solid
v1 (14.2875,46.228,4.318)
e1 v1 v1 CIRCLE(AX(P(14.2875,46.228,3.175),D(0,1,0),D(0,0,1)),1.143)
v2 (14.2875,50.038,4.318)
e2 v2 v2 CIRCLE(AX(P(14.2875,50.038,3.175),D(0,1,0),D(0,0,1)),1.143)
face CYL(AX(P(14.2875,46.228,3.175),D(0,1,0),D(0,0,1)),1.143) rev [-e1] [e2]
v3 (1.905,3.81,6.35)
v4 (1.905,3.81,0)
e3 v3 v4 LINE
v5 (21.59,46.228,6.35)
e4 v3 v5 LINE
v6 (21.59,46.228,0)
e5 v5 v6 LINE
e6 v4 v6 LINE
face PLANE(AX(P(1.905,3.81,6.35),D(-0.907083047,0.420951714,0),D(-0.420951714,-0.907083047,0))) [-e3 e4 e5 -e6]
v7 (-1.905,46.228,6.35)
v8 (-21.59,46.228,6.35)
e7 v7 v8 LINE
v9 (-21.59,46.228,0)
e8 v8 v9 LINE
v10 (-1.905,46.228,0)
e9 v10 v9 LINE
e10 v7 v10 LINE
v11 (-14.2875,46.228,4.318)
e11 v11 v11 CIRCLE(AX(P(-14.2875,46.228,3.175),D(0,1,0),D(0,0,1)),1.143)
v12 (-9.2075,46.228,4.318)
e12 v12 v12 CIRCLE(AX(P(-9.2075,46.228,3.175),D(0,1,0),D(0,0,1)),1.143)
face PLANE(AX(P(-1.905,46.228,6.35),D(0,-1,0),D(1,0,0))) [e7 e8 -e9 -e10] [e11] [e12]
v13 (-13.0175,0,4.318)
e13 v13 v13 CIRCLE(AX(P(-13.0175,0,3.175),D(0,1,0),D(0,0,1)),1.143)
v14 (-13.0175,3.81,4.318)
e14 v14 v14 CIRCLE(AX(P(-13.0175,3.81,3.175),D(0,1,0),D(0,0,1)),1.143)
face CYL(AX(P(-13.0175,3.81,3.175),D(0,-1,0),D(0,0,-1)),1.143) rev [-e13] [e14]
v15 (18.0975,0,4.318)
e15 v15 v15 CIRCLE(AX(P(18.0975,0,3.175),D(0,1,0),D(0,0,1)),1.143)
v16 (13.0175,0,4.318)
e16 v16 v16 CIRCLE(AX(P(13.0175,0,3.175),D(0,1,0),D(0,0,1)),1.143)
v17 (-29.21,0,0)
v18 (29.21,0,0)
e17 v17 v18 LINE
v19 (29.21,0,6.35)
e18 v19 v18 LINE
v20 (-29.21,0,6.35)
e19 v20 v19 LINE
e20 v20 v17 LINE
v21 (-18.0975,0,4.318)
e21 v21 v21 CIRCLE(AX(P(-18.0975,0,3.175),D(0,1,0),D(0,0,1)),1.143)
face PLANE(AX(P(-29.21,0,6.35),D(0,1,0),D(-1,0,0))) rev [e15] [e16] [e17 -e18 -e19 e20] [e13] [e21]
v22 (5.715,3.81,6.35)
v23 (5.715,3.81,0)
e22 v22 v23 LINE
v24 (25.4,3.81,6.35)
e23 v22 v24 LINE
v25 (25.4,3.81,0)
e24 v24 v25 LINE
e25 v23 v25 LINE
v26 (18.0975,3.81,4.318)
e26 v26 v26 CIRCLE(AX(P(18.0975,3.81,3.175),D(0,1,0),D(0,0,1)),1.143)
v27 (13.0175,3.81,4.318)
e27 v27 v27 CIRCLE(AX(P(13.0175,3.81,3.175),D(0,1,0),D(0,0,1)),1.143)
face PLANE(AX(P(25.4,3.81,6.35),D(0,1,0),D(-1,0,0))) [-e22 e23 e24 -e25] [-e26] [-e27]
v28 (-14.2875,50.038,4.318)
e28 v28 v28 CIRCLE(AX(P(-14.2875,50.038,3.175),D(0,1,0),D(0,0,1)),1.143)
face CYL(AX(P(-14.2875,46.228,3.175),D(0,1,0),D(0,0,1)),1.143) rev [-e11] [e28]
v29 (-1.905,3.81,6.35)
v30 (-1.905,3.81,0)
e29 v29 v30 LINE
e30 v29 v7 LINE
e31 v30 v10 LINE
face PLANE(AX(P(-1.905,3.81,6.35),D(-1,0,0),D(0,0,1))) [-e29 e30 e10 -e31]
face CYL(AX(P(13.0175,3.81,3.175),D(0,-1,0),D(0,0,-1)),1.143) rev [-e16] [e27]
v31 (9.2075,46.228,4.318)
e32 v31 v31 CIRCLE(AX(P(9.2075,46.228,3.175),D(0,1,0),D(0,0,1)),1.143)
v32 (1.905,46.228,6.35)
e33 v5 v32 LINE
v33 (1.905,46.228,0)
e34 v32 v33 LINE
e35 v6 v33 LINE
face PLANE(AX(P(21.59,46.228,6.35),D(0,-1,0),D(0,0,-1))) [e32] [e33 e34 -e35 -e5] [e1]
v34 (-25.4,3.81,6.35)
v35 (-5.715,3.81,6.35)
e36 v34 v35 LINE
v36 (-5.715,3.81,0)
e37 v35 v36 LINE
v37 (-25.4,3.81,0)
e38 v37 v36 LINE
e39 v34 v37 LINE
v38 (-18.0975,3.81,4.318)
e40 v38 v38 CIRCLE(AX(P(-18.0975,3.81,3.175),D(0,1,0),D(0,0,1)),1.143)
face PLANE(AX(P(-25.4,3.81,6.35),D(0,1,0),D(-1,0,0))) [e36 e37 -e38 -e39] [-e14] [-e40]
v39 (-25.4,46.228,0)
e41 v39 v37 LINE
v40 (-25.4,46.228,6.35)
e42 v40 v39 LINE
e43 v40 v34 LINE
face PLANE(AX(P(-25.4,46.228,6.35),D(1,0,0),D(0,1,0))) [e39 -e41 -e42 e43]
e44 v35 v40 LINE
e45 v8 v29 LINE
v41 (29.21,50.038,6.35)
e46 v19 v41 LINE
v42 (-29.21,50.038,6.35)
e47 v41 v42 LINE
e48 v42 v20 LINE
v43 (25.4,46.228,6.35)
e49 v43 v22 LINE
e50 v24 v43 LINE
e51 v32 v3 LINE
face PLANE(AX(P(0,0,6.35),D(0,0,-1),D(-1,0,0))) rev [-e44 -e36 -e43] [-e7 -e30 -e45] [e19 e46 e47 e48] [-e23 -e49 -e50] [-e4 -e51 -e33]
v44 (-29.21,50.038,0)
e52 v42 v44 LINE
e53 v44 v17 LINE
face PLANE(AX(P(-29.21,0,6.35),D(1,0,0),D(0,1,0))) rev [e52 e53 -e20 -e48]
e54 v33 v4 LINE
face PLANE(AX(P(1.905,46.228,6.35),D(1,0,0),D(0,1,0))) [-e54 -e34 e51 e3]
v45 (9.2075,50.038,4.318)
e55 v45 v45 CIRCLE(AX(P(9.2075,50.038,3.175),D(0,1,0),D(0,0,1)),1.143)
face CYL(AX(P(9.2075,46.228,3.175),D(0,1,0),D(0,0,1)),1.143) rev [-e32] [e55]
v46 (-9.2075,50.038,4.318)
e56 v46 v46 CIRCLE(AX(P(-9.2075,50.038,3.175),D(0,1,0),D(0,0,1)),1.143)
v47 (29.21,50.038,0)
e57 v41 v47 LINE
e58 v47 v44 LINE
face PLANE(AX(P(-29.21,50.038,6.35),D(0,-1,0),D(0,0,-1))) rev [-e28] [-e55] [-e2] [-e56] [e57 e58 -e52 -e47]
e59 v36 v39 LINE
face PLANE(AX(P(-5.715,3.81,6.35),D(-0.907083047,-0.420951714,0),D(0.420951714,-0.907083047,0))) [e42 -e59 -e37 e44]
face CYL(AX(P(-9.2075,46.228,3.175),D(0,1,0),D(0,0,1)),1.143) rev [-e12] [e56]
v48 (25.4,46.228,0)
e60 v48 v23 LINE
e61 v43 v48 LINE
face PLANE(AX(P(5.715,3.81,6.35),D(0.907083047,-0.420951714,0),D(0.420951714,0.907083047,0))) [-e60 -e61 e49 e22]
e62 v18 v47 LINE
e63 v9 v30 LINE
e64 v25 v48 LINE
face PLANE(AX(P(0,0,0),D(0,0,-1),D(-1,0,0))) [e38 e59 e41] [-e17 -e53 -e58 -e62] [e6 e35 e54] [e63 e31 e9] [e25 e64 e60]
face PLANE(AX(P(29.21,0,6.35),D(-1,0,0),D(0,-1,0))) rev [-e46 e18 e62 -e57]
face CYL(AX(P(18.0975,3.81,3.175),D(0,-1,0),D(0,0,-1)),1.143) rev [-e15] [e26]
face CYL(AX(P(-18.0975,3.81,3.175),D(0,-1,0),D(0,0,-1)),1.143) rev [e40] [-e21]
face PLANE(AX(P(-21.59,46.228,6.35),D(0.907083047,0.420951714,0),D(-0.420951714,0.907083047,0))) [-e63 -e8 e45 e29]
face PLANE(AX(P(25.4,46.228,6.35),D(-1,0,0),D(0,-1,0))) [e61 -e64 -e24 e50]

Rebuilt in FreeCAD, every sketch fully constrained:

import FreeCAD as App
import Part
import Sketcher

V = App.Vector
Q = App.Units.Quantity


def add_polygon(sketch, points):
    """Adds a closed chain of lines whose ends are joined by coincident constraints."""
    first, n = sketch.GeometryCount, len(points)
    for a, b in zip(points, points[1:] + points[:1]):
        sketch.addGeometry(Part.LineSegment(App.Vector(*a, 0), App.Vector(*b, 0)), False)
    for i in range(n):
        sketch.addConstraint(Sketcher.Constraint("Coincident", first + i, 2, first + (i + 1) % n, 1))

doc = App.newDocument("Part")
body = doc.addObject("PartDesign::Body", "Body")

sketch1 = body.newObject("Sketcher::SketchObject", "Sketch")
sketch1.AttachmentSupport = (doc.getObject("XY_Plane"), [""])
sketch1.MapMode = "FlatFace"
add_polygon(sketch1, [(-29.21, 50.038), (-29.21, 0), (29.21, 0), (29.21, 50.038)])
add_polygon(sketch1, [(-1.905, 3.81), (-21.59, 46.228), (-1.905, 46.228)])
add_polygon(sketch1, [(-25.4, 3.81), (-25.4, 46.228), (-5.715, 3.81)])
add_polygon(sketch1, [(1.905, 3.81), (1.905, 46.228), (21.59, 46.228)])
add_polygon(sketch1, [(25.4, 3.81), (5.715, 3.81), (25.4, 46.228)])
sketch1.addConstraint(Sketcher.Constraint("Vertical", 0))
sketch1.addConstraint(Sketcher.Constraint("Horizontal", 1))
sketch1.addConstraint(Sketcher.Constraint("Vertical", 2))
sketch1.addConstraint(Sketcher.Constraint("Horizontal", 3))
sketch1.addConstraint(Sketcher.Constraint("Horizontal", 5))
sketch1.addConstraint(Sketcher.Constraint("Vertical", 6))
sketch1.addConstraint(Sketcher.Constraint("Vertical", 7))
sketch1.addConstraint(Sketcher.Constraint("Horizontal", 9))
sketch1.addConstraint(Sketcher.Constraint("Vertical", 10))
sketch1.addConstraint(Sketcher.Constraint("Horizontal", 11))
sketch1.addConstraint(Sketcher.Constraint("Horizontal", 13))
sketch1.addConstraint(Sketcher.Constraint("Vertical", 15))
sketch1.addConstraint(Sketcher.Constraint("Symmetric", 0, 2, 1, 2, -1, 1))
sketch1.addConstraint(Sketcher.Constraint("Symmetric", 5, 2, 10, 2, -2))
sketch1.addConstraint(Sketcher.Constraint("Symmetric", 8, 2, 13, 2, -2))
sketch1.addConstraint(Sketcher.Constraint("Symmetric", 7, 2, 14, 2, -2))
sketch1.addConstraint(Sketcher.Constraint("Parallel", 4, 8))
sketch1.addConstraint(Sketcher.Constraint("Parallel", 12, 14))
sketch1.addConstraint(Sketcher.Constraint("Horizontal", 5, 2, 7, 2))
sketch1.addConstraint(Sketcher.Constraint("Horizontal", 6, 2, 8, 2))
sketch1.addConstraint(Sketcher.Constraint("Horizontal", 9, 2, 12, 2))
sketch1.addConstraint(Sketcher.Constraint("DistanceX", 1, 1, 1, 2, Q("2.3 in")))
sketch1.addConstraint(Sketcher.Constraint("DistanceX", 7, 2, -1, 1, Q("1 in")))
sketch1.addConstraint(Sketcher.Constraint("DistanceX", 4, 2, 2, 2, Q("2 in")))
sketch1.addConstraint(Sketcher.Constraint("DistanceY", 0, 2, 0, 1, Q("1.97 in")))
sketch1.addConstraint(Sketcher.Constraint("DistanceY", 6, 2, 6, 1, Q("1.67 in")))
sketch1.addConstraint(Sketcher.Constraint("DistanceX", 8, 2, 12, 2, Q("0.3 in")))
sketch1.addConstraint(Sketcher.Constraint("DistanceY", -1, 1, 4, 2, Q("1.82 in")))
pad1 = body.newObject("PartDesign::Pad", "Pad")
pad1.Profile = sketch1
pad1.Length = Q("0.25 in")

sketch2 = body.newObject("Sketcher::SketchObject", "Sketch001")
sketch2.AttachmentSupport = (doc.getObject("XZ_Plane"), [""])
sketch2.MapMode = "FlatFace"
sketch2.addGeometry(Part.Circle(V(-18.0975, 3.175, 0), V(0, 0, 1), 1.143), False)
sketch2.addGeometry(Part.Circle(V(-13.0175, 3.175, 0), V(0, 0, 1), 1.143), False)
sketch2.addGeometry(Part.Circle(V(18.0975, 3.175, 0), V(0, 0, 1), 1.143), False)
sketch2.addGeometry(Part.Circle(V(13.0175, 3.175, 0), V(0, 0, 1), 1.143), False)
sketch2.addConstraint(Sketcher.Constraint("Equal", 0, 1))
sketch2.addConstraint(Sketcher.Constraint("Equal", 1, 2))
sketch2.addConstraint(Sketcher.Constraint("Equal", 2, 3))
sketch2.addConstraint(Sketcher.Constraint("Symmetric", 0, 3, 2, 3, -2))
sketch2.addConstraint(Sketcher.Constraint("Symmetric", 1, 3, 3, 3, -2))
sketch2.addConstraint(Sketcher.Constraint("Horizontal", 0, 3, 1, 3))
sketch2.addConstraint(Sketcher.Constraint("Diameter", 0, Q("0.09 in")))
sketch2.addConstraint(Sketcher.Constraint("DistanceX", 0, 3, 1, 3, Q("0.2 in")))
sketch2.addConstraint(Sketcher.Constraint("DistanceY", -1, 1, 0, 3, Q("0.125 in")))
sketch2.addConstraint(Sketcher.Constraint("DistanceX", 1, 3, 2, 3, Q("1.225 in")))
pocket1 = body.newObject("PartDesign::Pocket", "Pocket")
pocket1.Profile = sketch2
pocket1.Length = Q("0.15 in")

sketch3 = body.newObject("Sketcher::SketchObject", "Sketch002")
sketch3.AttachmentSupport = (doc.getObject("XZ_Plane"), [""])
sketch3.MapMode = "FlatFace"
sketch3.AttachmentOffset = App.Placement(V(0, 0, -1.97 * 25.4), App.Rotation())
sketch3.addGeometry(Part.Circle(V(-14.2875, 3.175, 0), V(0, 0, 1), 1.143), False)
sketch3.addGeometry(Part.Circle(V(-9.2075, 3.175, 0), V(0, 0, 1), 1.143), False)
sketch3.addGeometry(Part.Circle(V(9.2075, 3.175, 0), V(0, 0, 1), 1.143), False)
sketch3.addGeometry(Part.Circle(V(14.2875, 3.175, 0), V(0, 0, 1), 1.143), False)
sketch3.addConstraint(Sketcher.Constraint("Equal", 0, 1))
sketch3.addConstraint(Sketcher.Constraint("Equal", 1, 2))
sketch3.addConstraint(Sketcher.Constraint("Equal", 2, 3))
sketch3.addConstraint(Sketcher.Constraint("Symmetric", 1, 3, 2, 3, -2))
sketch3.addConstraint(Sketcher.Constraint("Symmetric", 0, 3, 3, 3, -2))
sketch3.addConstraint(Sketcher.Constraint("Horizontal", 0, 3, 1, 3))
sketch3.addConstraint(Sketcher.Constraint("Diameter", 0, Q("0.09 in")))
sketch3.addConstraint(Sketcher.Constraint("DistanceX", 0, 3, 1, 3, Q("0.2 in")))
sketch3.addConstraint(Sketcher.Constraint("DistanceX", 0, 3, -1, 1, Q("0.5625 in")))
sketch3.addConstraint(Sketcher.Constraint("DistanceY", -1, 1, 0, 3, Q("0.125 in")))
pocket2 = body.newObject("PartDesign::Pocket", "Pocket001")
pocket2.Profile = sketch3
pocket2.Length = Q("0.15 in")
pocket2.Reversed = True

doc.recompute()
